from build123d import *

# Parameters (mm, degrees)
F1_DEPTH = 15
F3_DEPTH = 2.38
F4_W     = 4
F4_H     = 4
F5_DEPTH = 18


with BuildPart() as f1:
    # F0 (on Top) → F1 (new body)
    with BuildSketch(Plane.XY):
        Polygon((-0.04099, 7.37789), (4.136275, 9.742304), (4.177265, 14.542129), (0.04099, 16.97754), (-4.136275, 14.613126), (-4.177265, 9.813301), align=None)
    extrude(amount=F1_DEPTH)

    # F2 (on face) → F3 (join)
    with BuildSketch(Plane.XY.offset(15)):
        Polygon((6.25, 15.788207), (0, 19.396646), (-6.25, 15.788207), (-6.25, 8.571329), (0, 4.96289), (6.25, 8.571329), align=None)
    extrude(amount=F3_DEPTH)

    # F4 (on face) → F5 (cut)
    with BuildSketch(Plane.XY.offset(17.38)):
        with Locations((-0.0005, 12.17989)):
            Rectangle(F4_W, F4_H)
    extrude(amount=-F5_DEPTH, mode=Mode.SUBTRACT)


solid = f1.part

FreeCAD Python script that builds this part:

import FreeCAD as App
import Part
import Sketcher

V = App.Vector
Q = App.Units.Quantity


def add_polygon(sketch, points):
    """Adds a closed chain of lines whose ends are joined by coincident constraints."""
    first, n = sketch.GeometryCount, len(points)
    for a, b in zip(points, points[1:] + points[:1]):
        sketch.addGeometry(Part.LineSegment(App.Vector(*a, 0), App.Vector(*b, 0)), False)
    for i in range(n):
        sketch.addConstraint(Sketcher.Constraint("Coincident", first + i, 2, first + (i + 1) % n, 1))

doc = App.newDocument("Part")
body = doc.addObject("PartDesign::Body", "Body")

# Sketch on XY plane
sketch1 = body.newObject("Sketcher::SketchObject", "Sketch")
sketch1.AttachmentSupport = (doc.getObject("XY_Plane"), [""])
sketch1.MapMode = "FlatFace"
add_polygon(sketch1, [(0, 7.4), (4.1, 9.7), (4.2, 14.5), (0, 17), (-4.1, 14.6), (-4.2, 9.8)])  # lines 0-5
sketch1.addConstraint(Sketcher.Constraint("Parallel", 0, 3))
sketch1.addConstraint(Sketcher.Constraint("Parallel", 1, 4))
sketch1.addConstraint(Sketcher.Constraint("Parallel", 2, 5))
sketch1.addConstraint(Sketcher.Constraint("Equal", 0, 1))
sketch1.addConstraint(Sketcher.Constraint("Equal", 1, 2))
sketch1.addConstraint(Sketcher.Constraint("Equal", 2, 3))
sketch1.addConstraint(Sketcher.Constraint("Distance", 0, Q("4.8 mm")))
sketch1.addConstraint(Sketcher.Constraint("DistanceY", -1, 1, 4, 2, Q("9.813301 mm")))
sketch1.addConstraint(Sketcher.Constraint("DistanceY", -1, 1, 1, 2, Q("14.542129 mm")))
sketch1.addConstraint(Sketcher.Constraint("DistanceX", -1, 1, 2, 2, Q("0.04099 mm")))
sketch1.addConstraint(Sketcher.Constraint("DistanceY", -1, 1, 2, 2, Q("16.97754 mm")))
sketch1.addConstraint(Sketcher.Constraint("DistanceX", 5, 2, -1, 1, Q("0.04099 mm")))
pad1 = body.newObject("PartDesign::Pad", "Pad")
pad1.Profile = sketch1
pad1.Length = 15

# Sketch on XY plane
sketch2 = body.newObject("Sketcher::SketchObject", "Sketch001")
sketch2.AttachmentSupport = (doc.getObject("XY_Plane"), [""])
sketch2.MapMode = "FlatFace"
sketch2.AttachmentOffset = App.Placement(V(0, 0, 15), App.Rotation())
add_polygon(sketch2, [(6, 16), (0, 19), (-6, 16), (-6, 9), (0, 5), (6, 9)])  # lines 0-5
sketch2.addConstraint(Sketcher.Constraint("Vertical", 2))
sketch2.addConstraint(Sketcher.Constraint("Vertical", 5))
sketch2.addConstraint(Sketcher.Constraint("Symmetric", 2, 2, 4, 2, -2))
sketch2.addConstraint(Sketcher.Constraint("PointOnObject", 0, 2, -2))
sketch2.addConstraint(Sketcher.Constraint("PointOnObject", 3, 2, -2))
sketch2.addConstraint(Sketcher.Constraint("Parallel", 0, 3))
sketch2.addConstraint(Sketcher.Constraint("Parallel", 1, 4))
sketch2.addConstraint(Sketcher.Constraint("Angle", 0, Q("150.000001 deg")))
sketch2.addConstraint(Sketcher.Constraint("DistanceX", 2, 2, 4, 2, Q("12.5 mm")))
sketch2.addConstraint(Sketcher.Constraint("DistanceY", 2, 2, 2, 1, Q("7.216878 mm")))
sketch2.addConstraint(Sketcher.Constraint("DistanceY", -1, 1, 2, 2, Q("8.571329 mm")))
pad2 = body.newObject("PartDesign::Pad", "Pad001")
pad2.Profile = sketch2
pad2.Length = 2.38

# Sketch on XY plane
sketch3 = body.newObject("Sketcher::SketchObject", "Sketch002")
sketch3.AttachmentSupport = (doc.getObject("XY_Plane"), [""])
sketch3.MapMode = "FlatFace"
sketch3.AttachmentOffset = App.Placement(V(0, 0, 17.38), App.Rotation())
add_polygon(sketch3, [(-2, 14.2), (-2, 10.2), (2, 10.2), (2, 14.2)])  # lines 0-3
sketch3.addConstraint(Sketcher.Constraint("Vertical", 0))
sketch3.addConstraint(Sketcher.Constraint("Horizontal", 1))
sketch3.addConstraint(Sketcher.Constraint("Vertical", 2))
sketch3.addConstraint(Sketcher.Constraint("Horizontal", 3))
sketch3.addConstraint(Sketcher.Constraint("Equal", 3, 0))
sketch3.addConstraint(Sketcher.Constraint("DistanceX", 1, 1, 1, 2, Q("4 mm")))
sketch3.addConstraint(Sketcher.Constraint("DistanceX", 0, 2, -1, 1, Q("2.0005 mm")))
sketch3.addConstraint(Sketcher.Constraint("DistanceY", -1, 1, 0, 2, Q("10.17989 mm")))
pocket1 = body.newObject("PartDesign::Pocket", "Pocket")
pocket1.Profile = sketch3
pocket1.Length = 18

doc.recompute()
